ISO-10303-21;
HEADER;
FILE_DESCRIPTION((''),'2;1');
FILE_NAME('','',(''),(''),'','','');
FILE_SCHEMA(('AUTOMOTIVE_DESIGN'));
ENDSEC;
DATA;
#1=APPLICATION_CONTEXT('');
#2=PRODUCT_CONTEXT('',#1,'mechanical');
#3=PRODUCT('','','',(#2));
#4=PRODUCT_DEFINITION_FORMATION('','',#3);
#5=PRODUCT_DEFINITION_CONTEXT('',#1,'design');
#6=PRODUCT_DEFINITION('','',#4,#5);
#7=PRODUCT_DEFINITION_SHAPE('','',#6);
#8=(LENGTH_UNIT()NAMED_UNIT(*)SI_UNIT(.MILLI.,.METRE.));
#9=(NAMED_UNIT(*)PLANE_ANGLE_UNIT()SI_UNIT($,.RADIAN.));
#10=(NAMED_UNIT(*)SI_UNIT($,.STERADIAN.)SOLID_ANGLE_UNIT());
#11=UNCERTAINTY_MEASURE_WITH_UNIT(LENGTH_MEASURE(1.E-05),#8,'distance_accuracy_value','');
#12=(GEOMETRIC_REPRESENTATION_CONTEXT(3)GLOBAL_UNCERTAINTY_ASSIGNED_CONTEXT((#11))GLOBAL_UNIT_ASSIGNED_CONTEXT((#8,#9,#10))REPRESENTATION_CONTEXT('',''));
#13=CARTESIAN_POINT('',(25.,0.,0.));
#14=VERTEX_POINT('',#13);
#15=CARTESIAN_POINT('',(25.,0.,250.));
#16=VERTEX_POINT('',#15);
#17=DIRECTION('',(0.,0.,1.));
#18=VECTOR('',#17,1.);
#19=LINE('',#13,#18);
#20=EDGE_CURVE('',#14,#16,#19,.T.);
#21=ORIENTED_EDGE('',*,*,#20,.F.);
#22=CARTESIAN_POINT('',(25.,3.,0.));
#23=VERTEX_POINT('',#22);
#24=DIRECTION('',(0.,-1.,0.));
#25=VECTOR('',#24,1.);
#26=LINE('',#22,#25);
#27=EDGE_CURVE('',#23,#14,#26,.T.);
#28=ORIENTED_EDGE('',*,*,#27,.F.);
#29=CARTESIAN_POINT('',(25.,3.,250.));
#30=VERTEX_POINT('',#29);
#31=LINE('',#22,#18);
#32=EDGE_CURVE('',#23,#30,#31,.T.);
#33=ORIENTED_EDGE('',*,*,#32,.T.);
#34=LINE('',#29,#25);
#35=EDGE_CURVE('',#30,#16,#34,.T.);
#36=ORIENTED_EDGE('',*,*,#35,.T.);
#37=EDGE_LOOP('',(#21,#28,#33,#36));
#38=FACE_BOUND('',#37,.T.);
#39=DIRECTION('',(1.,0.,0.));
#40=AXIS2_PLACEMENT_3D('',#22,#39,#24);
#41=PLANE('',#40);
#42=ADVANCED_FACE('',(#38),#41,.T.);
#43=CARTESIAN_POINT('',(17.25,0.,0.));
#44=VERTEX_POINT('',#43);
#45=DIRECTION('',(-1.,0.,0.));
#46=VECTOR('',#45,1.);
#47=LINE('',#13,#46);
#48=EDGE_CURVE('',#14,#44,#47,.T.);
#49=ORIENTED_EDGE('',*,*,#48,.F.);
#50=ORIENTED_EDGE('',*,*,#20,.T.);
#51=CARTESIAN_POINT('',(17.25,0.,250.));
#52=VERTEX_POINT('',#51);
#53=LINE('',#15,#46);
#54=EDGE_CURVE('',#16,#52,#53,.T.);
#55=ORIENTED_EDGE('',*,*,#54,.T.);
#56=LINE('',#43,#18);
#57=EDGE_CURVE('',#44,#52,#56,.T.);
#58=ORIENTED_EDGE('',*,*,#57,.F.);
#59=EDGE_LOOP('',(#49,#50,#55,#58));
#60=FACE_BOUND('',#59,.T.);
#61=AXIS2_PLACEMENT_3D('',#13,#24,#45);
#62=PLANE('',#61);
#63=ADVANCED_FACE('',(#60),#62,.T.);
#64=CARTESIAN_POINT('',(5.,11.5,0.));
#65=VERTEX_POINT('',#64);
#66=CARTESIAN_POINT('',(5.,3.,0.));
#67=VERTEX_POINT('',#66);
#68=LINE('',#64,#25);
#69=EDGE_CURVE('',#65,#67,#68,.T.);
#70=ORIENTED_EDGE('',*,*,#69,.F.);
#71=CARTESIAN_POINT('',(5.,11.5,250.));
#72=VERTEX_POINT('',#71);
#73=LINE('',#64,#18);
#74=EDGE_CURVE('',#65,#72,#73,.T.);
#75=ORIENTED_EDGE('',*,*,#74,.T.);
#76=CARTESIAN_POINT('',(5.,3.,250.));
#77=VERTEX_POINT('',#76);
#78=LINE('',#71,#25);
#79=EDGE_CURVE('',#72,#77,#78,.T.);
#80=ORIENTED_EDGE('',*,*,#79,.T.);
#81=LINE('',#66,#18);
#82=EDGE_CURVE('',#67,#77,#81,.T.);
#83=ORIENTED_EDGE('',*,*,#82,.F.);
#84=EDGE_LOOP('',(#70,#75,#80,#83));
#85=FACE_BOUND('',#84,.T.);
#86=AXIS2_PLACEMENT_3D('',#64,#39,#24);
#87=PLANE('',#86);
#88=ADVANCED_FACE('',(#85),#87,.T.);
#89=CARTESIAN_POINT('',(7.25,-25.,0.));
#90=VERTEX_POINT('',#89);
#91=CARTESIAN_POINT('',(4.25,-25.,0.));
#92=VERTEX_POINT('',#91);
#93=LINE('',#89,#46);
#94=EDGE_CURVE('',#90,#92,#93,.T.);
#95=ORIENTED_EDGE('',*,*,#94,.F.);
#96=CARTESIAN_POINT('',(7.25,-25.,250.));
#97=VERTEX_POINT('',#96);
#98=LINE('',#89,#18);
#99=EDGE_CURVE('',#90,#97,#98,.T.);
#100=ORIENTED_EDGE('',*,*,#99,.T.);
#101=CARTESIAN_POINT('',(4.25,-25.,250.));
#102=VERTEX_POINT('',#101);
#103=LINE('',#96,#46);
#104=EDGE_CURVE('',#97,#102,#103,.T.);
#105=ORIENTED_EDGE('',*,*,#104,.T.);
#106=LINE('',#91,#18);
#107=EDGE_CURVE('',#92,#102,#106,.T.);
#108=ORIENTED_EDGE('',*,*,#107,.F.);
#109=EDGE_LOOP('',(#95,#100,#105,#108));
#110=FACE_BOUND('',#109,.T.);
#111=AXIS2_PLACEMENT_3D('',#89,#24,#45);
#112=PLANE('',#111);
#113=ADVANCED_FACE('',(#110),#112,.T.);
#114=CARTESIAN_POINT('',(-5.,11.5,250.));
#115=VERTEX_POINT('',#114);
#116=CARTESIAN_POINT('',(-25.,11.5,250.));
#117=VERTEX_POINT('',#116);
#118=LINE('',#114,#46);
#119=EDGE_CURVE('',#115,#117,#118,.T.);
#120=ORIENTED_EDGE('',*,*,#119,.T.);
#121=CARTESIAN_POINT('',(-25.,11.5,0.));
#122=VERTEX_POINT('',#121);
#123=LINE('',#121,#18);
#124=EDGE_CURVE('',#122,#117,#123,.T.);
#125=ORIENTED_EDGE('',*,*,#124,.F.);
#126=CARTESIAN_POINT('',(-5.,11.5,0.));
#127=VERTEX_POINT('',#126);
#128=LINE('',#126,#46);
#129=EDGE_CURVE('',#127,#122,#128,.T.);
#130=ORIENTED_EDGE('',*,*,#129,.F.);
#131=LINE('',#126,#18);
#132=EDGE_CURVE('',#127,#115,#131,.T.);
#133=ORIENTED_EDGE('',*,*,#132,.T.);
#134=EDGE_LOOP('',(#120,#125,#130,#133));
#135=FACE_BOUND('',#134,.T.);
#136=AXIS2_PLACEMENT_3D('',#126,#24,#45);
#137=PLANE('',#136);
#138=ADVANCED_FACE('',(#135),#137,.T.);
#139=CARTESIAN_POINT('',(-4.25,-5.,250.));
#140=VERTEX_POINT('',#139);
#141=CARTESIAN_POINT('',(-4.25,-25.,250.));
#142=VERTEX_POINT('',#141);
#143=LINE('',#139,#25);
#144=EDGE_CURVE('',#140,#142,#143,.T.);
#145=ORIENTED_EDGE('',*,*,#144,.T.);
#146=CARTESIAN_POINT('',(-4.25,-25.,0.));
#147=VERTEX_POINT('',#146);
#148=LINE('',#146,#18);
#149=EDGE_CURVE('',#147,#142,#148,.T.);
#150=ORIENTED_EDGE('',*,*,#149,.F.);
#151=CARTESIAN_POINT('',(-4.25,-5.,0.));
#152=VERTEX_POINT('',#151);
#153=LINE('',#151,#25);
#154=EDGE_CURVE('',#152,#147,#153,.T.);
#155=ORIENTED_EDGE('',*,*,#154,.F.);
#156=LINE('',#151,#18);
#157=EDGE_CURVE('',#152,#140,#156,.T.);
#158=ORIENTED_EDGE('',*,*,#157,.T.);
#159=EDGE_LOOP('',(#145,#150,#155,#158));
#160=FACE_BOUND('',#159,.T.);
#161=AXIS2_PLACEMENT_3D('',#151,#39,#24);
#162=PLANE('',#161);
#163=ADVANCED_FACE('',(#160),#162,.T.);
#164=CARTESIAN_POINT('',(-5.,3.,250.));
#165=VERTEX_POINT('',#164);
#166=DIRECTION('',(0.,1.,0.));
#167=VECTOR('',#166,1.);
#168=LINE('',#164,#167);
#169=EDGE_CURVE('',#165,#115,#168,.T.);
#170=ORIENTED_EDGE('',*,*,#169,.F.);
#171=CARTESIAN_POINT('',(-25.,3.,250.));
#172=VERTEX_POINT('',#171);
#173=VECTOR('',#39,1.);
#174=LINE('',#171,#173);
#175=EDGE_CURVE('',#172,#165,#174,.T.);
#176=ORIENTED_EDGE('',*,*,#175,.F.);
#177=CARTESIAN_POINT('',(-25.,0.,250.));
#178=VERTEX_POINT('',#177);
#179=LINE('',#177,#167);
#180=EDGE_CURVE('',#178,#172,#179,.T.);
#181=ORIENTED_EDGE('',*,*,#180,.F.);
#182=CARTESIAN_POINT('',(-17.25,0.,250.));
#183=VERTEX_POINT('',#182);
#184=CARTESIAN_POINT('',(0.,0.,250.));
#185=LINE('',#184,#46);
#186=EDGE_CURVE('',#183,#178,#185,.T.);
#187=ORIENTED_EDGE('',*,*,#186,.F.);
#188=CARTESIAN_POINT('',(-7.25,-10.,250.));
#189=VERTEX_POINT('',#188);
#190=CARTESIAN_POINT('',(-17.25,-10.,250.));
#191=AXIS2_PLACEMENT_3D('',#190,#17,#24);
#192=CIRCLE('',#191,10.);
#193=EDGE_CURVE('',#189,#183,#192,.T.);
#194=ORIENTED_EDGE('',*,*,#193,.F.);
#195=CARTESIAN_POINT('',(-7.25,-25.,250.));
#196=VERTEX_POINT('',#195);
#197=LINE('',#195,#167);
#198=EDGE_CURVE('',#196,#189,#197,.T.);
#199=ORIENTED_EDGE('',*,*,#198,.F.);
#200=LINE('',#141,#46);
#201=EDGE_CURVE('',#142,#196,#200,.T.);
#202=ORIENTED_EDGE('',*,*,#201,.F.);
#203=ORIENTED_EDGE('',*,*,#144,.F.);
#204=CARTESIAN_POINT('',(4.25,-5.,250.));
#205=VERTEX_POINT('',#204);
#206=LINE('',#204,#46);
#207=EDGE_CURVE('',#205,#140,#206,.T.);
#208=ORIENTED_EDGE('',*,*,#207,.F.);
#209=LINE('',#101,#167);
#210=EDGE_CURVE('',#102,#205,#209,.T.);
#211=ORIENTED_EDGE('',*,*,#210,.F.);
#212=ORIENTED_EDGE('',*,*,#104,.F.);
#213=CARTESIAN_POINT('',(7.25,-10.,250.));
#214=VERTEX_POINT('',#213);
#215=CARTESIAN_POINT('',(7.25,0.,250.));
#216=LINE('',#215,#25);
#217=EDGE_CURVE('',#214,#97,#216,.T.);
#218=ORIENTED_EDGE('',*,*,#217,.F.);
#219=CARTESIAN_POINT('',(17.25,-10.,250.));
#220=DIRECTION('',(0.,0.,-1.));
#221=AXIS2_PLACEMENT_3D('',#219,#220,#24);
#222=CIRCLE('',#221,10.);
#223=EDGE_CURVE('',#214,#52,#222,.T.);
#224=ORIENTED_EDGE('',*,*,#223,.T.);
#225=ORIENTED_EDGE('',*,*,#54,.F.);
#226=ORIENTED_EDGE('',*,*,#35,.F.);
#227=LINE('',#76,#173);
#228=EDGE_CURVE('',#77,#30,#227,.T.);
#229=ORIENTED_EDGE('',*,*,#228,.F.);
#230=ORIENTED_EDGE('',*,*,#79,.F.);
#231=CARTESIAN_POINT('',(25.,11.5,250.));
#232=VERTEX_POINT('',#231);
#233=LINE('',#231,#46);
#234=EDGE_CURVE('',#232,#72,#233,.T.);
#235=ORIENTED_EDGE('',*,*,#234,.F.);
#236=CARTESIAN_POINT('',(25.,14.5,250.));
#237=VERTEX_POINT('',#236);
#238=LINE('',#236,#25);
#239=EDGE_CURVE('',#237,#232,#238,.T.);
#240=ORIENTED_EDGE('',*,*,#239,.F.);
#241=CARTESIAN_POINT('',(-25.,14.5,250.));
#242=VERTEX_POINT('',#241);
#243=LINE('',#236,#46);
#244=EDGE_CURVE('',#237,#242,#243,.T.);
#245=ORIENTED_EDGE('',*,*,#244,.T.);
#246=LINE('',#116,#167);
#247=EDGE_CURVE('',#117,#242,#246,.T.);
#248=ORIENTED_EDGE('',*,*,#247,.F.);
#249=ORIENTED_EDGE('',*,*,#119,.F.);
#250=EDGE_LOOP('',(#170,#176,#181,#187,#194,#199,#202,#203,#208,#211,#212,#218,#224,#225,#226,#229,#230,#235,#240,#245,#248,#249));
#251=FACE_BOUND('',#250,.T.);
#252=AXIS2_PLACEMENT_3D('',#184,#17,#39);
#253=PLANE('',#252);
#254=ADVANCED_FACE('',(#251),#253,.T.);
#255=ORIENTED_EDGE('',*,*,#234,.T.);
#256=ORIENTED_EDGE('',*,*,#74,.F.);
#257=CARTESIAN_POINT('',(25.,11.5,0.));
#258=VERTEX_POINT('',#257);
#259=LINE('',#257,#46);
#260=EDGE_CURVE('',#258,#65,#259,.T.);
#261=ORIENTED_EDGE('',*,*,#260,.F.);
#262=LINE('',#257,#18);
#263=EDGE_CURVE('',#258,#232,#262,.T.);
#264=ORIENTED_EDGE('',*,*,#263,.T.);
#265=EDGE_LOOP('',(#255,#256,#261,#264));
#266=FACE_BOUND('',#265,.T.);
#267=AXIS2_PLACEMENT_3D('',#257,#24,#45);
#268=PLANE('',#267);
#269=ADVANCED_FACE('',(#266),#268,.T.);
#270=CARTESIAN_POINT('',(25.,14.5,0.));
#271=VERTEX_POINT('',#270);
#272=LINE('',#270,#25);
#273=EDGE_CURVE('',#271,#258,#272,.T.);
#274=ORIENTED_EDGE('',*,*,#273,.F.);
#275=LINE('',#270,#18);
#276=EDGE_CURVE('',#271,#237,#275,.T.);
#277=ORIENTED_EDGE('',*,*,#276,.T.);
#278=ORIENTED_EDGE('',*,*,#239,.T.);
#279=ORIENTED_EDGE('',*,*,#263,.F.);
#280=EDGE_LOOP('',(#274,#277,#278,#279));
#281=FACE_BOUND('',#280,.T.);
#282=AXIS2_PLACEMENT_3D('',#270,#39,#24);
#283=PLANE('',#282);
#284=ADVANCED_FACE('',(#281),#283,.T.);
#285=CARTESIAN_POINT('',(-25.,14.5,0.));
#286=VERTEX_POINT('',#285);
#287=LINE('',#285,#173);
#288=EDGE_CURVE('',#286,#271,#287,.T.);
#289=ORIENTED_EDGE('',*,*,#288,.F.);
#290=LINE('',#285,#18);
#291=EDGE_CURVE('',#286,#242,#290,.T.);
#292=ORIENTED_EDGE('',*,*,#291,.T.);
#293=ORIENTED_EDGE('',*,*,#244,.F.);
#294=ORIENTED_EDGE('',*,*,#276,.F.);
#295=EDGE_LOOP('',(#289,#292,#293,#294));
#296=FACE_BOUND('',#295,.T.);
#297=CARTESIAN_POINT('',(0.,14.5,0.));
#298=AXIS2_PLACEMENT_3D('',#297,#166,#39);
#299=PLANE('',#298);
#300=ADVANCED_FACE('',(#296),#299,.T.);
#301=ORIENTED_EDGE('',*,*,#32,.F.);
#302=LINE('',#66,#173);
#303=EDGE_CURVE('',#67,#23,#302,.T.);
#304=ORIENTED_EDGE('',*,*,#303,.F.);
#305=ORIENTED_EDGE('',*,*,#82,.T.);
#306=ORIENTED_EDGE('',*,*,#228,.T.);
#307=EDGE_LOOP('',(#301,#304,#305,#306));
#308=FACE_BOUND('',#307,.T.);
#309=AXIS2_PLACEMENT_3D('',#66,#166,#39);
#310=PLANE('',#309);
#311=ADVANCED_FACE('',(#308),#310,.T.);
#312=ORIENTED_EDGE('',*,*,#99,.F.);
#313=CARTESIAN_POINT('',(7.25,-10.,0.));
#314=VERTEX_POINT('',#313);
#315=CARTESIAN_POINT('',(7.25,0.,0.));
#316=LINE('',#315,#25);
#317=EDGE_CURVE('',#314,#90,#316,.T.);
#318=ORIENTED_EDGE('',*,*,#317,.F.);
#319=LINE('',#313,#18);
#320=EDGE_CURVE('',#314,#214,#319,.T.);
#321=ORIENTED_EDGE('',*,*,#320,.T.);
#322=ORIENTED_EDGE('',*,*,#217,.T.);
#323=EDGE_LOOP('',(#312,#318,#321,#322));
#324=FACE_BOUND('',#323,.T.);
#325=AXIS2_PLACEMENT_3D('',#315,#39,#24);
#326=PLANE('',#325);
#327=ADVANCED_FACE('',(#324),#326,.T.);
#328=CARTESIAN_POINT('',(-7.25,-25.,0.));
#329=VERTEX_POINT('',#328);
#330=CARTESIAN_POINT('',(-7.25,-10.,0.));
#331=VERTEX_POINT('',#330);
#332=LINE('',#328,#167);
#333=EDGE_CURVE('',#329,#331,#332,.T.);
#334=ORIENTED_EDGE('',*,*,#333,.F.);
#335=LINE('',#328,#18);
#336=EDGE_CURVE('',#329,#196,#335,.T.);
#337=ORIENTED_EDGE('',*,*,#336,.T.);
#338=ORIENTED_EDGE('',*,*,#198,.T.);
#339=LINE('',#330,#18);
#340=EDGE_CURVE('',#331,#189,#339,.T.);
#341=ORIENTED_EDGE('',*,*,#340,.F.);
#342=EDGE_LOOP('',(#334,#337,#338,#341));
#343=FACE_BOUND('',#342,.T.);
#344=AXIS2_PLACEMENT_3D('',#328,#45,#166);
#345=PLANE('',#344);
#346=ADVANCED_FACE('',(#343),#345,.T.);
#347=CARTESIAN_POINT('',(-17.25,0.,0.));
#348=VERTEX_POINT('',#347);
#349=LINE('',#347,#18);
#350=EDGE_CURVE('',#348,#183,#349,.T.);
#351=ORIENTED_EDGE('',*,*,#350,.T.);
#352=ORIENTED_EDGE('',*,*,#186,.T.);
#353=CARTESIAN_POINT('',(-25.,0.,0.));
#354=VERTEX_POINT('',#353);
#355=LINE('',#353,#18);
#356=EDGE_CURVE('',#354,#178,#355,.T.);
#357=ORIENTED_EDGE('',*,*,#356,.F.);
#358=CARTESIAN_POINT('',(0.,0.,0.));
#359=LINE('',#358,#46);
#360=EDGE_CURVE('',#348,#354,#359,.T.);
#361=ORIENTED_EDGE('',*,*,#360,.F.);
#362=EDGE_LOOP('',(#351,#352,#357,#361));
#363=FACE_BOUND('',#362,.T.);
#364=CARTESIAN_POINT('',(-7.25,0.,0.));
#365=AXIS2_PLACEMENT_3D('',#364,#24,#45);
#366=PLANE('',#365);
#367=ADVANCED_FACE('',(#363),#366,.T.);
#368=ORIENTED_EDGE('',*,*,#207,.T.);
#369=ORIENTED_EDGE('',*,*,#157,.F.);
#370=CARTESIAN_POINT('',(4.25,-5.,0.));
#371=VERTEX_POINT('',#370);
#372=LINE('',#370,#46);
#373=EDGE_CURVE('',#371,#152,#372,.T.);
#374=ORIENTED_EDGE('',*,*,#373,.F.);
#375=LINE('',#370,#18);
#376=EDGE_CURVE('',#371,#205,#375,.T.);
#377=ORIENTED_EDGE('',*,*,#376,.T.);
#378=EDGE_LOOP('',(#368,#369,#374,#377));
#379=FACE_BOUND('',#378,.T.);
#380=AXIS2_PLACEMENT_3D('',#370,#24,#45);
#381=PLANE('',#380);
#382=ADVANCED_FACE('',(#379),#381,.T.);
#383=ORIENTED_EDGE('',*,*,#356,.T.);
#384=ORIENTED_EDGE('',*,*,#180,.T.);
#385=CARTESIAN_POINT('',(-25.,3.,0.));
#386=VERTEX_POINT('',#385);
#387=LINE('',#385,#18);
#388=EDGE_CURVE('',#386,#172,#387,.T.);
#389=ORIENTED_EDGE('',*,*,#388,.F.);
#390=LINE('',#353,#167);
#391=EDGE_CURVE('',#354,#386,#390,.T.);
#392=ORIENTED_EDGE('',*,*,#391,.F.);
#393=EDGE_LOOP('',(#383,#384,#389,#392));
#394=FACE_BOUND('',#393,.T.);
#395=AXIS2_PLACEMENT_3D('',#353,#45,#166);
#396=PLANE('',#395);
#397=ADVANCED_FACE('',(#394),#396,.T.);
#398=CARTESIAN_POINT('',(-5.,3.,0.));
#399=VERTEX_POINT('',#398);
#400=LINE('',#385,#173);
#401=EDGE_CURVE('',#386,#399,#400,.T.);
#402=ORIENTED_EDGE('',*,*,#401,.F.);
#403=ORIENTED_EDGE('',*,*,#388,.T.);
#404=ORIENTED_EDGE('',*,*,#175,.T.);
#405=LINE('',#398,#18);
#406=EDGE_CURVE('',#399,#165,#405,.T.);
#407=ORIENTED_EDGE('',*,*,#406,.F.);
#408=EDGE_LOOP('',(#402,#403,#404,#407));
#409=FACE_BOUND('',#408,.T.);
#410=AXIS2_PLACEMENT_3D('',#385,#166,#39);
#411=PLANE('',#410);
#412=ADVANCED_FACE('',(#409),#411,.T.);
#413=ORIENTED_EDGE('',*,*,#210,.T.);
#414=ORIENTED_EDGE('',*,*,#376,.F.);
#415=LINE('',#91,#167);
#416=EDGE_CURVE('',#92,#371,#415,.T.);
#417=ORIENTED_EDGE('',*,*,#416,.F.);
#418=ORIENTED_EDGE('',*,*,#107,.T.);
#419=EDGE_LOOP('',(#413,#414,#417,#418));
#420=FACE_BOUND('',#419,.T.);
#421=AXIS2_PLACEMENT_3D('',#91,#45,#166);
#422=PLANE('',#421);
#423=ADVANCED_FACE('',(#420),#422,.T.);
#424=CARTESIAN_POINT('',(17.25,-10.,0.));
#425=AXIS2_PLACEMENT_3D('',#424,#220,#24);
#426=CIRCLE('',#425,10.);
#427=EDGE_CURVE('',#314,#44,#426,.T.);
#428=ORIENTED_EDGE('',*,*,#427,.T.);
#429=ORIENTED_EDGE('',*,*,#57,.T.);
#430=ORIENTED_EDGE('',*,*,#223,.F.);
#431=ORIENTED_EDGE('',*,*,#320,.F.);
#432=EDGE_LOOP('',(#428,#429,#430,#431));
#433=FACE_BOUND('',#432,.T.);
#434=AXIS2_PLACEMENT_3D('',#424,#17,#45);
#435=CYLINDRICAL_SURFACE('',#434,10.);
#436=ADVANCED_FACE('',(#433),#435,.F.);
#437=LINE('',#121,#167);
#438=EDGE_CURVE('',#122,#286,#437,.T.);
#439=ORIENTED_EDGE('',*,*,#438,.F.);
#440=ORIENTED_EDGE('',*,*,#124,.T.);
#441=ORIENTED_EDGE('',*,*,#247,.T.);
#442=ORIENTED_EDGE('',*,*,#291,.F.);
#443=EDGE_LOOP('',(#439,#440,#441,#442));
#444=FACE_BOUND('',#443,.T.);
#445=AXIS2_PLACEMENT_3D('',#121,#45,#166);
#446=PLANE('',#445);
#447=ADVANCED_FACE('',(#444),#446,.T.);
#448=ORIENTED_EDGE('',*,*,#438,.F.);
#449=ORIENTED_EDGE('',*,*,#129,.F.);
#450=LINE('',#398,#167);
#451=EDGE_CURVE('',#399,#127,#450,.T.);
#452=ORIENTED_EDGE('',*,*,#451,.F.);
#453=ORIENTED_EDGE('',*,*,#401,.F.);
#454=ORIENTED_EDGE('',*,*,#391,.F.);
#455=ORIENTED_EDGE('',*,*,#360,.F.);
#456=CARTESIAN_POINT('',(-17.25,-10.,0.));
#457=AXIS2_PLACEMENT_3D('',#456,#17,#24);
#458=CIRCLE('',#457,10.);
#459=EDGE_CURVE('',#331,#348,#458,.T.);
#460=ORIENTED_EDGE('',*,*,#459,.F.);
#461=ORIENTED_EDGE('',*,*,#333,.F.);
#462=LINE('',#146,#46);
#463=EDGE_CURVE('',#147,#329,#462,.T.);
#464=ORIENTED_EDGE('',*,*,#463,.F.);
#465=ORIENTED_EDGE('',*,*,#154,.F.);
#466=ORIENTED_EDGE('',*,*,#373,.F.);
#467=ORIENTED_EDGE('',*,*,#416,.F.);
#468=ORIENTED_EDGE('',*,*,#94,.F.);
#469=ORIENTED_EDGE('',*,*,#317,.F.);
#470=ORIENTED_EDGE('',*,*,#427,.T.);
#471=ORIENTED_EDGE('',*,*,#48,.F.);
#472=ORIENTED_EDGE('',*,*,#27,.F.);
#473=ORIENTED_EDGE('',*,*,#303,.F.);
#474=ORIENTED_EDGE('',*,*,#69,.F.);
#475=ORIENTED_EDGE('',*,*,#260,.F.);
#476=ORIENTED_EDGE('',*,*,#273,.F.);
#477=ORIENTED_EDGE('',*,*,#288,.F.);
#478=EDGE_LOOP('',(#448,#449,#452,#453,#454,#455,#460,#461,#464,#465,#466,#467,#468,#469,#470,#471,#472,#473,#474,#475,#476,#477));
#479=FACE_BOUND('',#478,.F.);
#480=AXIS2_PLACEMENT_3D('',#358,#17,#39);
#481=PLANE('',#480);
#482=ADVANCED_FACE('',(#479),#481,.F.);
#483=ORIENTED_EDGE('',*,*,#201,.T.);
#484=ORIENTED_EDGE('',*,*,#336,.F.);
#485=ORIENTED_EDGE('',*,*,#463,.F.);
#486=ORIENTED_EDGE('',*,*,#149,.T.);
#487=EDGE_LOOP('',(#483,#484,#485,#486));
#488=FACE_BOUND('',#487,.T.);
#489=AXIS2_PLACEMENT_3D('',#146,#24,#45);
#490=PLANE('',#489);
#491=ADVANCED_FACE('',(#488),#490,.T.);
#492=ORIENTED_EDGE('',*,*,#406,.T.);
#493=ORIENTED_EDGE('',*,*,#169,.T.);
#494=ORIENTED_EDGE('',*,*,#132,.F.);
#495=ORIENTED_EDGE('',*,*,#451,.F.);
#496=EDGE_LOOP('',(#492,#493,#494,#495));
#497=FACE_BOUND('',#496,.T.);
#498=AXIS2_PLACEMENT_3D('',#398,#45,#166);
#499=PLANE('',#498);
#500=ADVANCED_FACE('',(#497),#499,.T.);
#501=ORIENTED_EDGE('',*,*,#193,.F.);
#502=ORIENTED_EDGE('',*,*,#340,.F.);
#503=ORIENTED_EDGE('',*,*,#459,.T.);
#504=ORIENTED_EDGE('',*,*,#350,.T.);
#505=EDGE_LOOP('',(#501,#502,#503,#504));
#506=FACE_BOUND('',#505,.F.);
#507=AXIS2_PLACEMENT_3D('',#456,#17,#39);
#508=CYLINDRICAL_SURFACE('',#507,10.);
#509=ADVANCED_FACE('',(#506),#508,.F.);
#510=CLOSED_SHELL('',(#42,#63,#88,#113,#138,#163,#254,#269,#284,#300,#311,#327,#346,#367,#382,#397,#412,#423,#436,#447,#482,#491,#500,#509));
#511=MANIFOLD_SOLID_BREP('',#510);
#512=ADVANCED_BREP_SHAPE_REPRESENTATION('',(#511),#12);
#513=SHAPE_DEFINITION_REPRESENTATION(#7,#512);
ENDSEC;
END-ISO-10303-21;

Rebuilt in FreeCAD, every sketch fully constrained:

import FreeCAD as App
import Part
import Sketcher
from FreeCAD import Vector


def edges_at(feature, points):
    """Names of the edges that pass closest to the given points."""
    edges = feature.Shape.Edges
    near = lambda p: min(range(len(edges)), key=lambda i: edges[i].distToShape(Part.Vertex(*p))[0])
    return sorted({f"Edge{near(p) + 1}" for p in points})


def add_polygon(sketch, points):
    """Adds a closed chain of lines whose ends are joined by coincident constraints."""
    first, n = sketch.GeometryCount, len(points)
    for a, b in zip(points, points[1:] + points[:1]):
        sketch.addGeometry(Part.LineSegment(App.Vector(*a, 0), App.Vector(*b, 0)), False)
    for i in range(n):
        sketch.addConstraint(Sketcher.Constraint("Coincident", first + i, 2, first + (i + 1) % n, 1))

doc = App.newDocument("Part")
body = doc.addObject("PartDesign::Body", "Body")

sketch1 = body.newObject("Sketcher::SketchObject", "Sketch")
sketch1.AttachmentSupport = (doc.getObject("XY_Plane"), [""])
sketch1.MapMode = "FlatFace"
add_polygon(sketch1, [(7.2, -25), (7.2, 0), (25, 0), (25, 3), (5, 3), (5, 11.5), (25, 11.5), (25, 14.5), (-25, 14.5), (-25, 11.5), (-5, 11.5), (-5, 3), (-25, 3), (-25, 0), (-7.2, 0), (-7.2, -25), (-4.2, -25), (-4.2, -5), (4.2, -5), (4.2, -25)])
sketch1.addConstraint([
    Sketcher.Constraint("Vertical", 0),
    Sketcher.Constraint("Horizontal", 1),
    Sketcher.Constraint("Vertical", 2),
    Sketcher.Constraint("Horizontal", 3),
    Sketcher.Constraint("Vertical", 4),
    Sketcher.Constraint("Horizontal", 5),
    Sketcher.Constraint("Vertical", 6),
    Sketcher.Constraint("Horizontal", 7),
    Sketcher.Constraint("Vertical", 8),
    Sketcher.Constraint("Horizontal", 9),
    Sketcher.Constraint("Vertical", 10),
    Sketcher.Constraint("Horizontal", 11),
    Sketcher.Constraint("Vertical", 12),
    Sketcher.Constraint("Horizontal", 13),
    Sketcher.Constraint("Vertical", 14),
    Sketcher.Constraint("Horizontal", 15),
    Sketcher.Constraint("Vertical", 16),
    Sketcher.Constraint("Horizontal", 17),
    Sketcher.Constraint("Vertical", 18),
    Sketcher.Constraint("Horizontal", 19),
    Sketcher.Constraint("Symmetric", 1, 2, 12, 2, -1, 1),
    Sketcher.Constraint("Symmetric", 5, 2, 8, 2, -2),
    Sketcher.Constraint("Symmetric", 3, 2, 10, 2, -2),
    Sketcher.Constraint("Symmetric", 0, 2, 13, 2, -2),
    Sketcher.Constraint("Symmetric", 15, 2, 18, 2, -2),
    Sketcher.Constraint("Vertical", 2, 2, 5, 2),
    Sketcher.Constraint("Equal", 19, 2),
    Sketcher.Constraint("Equal", 17, 4),
    Sketcher.Constraint("Equal", 2, 6),
    Sketcher.Constraint("Equal", 11, 16),
    Sketcher.Constraint("DistanceX", 3, 2, 3, 1, 20.0),
    Sketcher.Constraint("DistanceX", 15, 1, 15, 2, 3.0),
    Sketcher.Constraint("DistanceY", 0, 1, 0, 2, 25.0),
    Sketcher.Constraint("DistanceX", 17, 1, 17, 2, 8.5),
    Sketcher.Constraint("DistanceX", -1, 1, 1, 2, 25.0),
])
pad1 = body.newObject("PartDesign::Pad", "Pad")
pad1.Profile = sketch1
pad1.Length = 250
doc.recompute()

fillet = body.newObject("PartDesign::Fillet", "Fillet")
fillet.Base = (pad1, edges_at(pad1, [(-7.25, 0, 125), (7.25, 0, 125)]))
fillet.Radius = 10

doc.recompute()
